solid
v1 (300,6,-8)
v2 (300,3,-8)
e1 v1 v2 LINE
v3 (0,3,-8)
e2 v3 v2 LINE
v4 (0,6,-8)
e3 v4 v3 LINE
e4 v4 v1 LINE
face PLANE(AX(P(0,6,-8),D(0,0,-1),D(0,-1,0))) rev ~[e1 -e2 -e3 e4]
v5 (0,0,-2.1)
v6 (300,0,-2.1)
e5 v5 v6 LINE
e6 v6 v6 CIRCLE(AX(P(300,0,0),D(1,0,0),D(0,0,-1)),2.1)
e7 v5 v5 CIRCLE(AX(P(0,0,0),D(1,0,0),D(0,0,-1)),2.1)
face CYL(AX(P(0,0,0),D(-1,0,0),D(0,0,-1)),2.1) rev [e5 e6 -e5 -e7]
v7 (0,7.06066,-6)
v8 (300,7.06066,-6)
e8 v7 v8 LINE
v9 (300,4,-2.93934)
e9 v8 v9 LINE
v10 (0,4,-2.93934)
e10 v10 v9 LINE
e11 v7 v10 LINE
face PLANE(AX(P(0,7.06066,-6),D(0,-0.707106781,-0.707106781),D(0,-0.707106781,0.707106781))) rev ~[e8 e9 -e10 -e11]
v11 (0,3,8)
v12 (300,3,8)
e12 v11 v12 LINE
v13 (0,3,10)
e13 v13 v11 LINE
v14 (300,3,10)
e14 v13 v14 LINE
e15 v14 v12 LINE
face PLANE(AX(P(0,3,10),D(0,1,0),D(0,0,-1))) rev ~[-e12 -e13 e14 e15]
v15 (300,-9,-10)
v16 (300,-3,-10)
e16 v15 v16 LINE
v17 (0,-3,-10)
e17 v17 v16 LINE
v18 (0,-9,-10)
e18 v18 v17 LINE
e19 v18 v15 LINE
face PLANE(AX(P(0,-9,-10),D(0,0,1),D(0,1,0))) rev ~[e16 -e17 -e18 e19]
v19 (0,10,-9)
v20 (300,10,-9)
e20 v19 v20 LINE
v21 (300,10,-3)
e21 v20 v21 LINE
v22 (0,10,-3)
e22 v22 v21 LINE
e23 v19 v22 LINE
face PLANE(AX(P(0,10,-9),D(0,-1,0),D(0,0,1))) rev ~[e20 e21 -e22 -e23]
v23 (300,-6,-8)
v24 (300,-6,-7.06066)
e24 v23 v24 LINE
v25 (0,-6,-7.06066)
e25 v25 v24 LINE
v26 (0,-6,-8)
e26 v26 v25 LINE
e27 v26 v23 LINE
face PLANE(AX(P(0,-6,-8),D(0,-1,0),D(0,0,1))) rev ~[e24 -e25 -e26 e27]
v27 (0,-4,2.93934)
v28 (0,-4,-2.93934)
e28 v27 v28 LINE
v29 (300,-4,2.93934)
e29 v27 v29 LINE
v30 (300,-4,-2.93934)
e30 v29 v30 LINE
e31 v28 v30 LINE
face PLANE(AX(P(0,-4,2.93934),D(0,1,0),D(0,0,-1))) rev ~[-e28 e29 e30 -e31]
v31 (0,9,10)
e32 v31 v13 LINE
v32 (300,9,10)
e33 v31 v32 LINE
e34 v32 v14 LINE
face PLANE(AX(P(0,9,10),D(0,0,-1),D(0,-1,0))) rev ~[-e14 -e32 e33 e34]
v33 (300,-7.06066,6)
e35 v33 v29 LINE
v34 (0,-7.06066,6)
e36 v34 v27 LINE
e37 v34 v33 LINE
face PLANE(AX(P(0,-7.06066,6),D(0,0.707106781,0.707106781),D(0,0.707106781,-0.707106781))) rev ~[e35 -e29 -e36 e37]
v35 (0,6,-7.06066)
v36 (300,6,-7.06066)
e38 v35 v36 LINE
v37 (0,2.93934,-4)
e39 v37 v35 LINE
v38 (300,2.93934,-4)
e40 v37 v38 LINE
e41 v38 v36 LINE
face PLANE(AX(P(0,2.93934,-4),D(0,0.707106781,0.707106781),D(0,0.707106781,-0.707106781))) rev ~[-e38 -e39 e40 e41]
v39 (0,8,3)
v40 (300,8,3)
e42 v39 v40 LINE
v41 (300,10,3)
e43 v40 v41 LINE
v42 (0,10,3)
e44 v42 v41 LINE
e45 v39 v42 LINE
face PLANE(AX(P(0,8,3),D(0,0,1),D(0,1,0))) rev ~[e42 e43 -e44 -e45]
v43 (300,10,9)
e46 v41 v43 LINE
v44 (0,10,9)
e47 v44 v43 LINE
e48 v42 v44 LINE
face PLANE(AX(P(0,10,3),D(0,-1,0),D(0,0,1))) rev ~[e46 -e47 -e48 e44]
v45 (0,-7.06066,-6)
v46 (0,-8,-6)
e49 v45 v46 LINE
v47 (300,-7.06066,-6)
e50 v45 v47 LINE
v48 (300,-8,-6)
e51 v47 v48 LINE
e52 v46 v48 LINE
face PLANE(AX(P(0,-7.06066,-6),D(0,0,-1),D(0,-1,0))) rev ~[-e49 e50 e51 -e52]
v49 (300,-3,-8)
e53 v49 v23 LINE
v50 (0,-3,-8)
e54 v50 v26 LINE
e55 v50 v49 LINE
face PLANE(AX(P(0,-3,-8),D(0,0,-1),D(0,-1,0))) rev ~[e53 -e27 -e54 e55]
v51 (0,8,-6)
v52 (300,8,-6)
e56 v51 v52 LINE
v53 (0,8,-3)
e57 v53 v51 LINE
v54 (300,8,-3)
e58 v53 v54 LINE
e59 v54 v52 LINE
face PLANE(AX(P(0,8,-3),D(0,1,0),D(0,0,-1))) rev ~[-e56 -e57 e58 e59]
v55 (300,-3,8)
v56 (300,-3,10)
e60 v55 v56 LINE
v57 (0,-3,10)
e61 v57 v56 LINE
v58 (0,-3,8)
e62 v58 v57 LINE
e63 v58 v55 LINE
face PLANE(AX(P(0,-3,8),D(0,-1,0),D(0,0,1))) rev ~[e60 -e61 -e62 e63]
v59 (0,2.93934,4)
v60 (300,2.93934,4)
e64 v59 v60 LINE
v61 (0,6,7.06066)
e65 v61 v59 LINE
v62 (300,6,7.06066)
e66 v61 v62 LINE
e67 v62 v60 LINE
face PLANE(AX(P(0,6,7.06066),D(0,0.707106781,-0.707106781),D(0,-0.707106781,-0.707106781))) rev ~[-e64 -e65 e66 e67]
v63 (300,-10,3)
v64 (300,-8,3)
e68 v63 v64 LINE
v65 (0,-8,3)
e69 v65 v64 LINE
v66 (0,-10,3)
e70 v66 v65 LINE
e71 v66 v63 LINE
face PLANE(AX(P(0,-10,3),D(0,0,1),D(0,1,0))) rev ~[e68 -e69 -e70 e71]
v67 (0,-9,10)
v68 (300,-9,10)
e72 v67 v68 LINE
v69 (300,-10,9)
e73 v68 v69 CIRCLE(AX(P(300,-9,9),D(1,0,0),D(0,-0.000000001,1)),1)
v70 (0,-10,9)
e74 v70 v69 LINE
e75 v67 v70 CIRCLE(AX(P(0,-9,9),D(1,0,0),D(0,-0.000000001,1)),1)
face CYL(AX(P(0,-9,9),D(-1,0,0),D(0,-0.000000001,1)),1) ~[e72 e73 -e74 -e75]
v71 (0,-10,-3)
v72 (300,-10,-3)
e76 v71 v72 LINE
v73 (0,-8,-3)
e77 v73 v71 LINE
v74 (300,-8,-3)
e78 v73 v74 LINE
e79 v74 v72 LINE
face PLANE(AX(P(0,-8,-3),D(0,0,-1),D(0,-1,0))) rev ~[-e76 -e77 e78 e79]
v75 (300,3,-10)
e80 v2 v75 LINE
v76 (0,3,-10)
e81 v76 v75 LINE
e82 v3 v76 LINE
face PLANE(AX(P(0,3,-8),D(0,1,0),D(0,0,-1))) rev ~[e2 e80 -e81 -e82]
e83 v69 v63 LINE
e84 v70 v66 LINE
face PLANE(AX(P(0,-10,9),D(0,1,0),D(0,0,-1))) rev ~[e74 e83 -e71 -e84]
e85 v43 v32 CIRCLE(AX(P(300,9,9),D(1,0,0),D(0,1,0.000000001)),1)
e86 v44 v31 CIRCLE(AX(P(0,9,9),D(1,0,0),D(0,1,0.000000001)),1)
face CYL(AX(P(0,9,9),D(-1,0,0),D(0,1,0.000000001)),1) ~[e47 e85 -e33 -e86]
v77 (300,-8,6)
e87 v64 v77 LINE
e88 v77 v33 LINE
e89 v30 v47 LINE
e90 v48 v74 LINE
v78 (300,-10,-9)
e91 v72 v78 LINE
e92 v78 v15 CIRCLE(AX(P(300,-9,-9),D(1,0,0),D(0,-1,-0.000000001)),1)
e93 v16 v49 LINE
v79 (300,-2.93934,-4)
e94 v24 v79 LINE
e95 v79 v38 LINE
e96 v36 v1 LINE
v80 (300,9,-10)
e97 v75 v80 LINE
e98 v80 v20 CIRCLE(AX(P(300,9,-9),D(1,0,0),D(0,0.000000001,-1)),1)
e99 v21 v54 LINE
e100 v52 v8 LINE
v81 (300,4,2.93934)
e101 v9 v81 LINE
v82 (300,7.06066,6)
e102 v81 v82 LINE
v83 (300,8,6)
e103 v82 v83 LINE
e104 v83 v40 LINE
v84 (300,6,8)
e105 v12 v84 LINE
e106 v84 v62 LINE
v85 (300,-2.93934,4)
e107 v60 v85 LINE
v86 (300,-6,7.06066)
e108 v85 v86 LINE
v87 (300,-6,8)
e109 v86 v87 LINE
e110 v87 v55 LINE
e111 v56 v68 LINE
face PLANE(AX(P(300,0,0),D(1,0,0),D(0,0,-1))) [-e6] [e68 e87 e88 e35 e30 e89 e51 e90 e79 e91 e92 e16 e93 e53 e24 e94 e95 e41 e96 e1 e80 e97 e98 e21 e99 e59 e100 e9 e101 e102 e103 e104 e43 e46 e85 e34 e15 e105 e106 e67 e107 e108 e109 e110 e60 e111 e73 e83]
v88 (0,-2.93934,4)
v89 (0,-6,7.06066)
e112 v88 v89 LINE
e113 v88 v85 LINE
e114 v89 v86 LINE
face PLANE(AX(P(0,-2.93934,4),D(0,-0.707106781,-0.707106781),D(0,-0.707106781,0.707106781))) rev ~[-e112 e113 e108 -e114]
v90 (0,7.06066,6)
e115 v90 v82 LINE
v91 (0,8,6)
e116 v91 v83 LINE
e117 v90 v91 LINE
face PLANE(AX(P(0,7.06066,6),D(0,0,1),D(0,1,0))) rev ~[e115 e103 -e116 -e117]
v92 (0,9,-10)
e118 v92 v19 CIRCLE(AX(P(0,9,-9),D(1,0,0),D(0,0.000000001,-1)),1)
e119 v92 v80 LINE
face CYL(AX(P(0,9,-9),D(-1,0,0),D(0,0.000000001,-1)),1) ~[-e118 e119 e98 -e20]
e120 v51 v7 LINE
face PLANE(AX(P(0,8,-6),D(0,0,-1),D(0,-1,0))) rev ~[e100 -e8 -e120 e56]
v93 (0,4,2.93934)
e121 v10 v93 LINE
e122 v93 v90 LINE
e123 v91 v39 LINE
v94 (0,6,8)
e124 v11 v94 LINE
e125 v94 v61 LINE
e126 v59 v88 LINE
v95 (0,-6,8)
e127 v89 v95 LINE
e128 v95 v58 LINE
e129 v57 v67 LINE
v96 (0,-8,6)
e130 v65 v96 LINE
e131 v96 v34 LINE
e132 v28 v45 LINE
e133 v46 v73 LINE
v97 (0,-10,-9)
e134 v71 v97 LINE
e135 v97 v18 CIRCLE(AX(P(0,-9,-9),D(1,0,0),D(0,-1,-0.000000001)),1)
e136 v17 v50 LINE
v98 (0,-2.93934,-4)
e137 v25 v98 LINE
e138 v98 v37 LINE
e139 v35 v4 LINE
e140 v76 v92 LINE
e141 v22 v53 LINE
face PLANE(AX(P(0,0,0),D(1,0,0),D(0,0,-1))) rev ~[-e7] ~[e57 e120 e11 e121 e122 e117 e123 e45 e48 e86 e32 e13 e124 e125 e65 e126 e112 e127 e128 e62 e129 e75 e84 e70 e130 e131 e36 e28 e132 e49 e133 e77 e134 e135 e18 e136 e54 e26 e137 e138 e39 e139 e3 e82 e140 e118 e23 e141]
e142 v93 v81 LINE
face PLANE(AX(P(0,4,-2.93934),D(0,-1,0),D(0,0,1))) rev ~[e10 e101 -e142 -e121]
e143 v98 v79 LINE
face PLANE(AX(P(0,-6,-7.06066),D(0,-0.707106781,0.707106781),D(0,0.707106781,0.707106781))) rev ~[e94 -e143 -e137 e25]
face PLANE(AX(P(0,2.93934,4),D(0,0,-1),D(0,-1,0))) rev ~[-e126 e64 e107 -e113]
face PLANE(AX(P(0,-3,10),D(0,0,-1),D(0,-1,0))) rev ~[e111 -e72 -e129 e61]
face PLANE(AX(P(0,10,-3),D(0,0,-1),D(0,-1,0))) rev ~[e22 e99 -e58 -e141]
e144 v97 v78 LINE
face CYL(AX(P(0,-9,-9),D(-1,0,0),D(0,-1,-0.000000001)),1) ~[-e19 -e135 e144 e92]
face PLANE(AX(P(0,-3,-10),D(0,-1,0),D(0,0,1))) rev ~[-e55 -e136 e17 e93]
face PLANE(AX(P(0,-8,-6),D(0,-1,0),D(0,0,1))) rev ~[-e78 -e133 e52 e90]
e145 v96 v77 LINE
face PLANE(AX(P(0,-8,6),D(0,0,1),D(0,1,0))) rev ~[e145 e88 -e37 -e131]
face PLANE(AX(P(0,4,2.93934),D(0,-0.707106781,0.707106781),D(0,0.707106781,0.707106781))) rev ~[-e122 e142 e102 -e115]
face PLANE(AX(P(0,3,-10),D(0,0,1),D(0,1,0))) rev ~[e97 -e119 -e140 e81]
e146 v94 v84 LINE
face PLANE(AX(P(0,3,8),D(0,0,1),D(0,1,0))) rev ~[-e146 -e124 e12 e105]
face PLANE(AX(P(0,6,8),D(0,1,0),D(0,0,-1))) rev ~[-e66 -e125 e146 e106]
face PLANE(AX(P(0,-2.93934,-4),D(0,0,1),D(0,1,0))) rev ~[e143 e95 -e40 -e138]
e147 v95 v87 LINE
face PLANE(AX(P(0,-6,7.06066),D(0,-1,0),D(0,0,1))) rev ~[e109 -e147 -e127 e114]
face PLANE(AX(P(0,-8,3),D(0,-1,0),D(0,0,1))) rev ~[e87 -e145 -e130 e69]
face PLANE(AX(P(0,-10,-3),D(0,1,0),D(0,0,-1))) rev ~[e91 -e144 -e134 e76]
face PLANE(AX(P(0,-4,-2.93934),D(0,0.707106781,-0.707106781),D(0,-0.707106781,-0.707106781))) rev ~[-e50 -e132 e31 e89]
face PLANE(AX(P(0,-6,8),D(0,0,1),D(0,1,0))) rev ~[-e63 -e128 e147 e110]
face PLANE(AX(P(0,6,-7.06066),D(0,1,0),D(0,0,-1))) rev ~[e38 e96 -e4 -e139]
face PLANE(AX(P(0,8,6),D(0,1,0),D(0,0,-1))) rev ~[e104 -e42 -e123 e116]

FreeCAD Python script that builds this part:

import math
import FreeCAD as App
import Part
import Sketcher
Q = App.Units.Quantity

doc = App.newDocument("Part")
params = doc.addObject("Spreadsheet::Sheet", "Params")
for row, (alias, value) in enumerate([
    ("sketch1_radius", "1 mm"),
    ("sketch1_diameter", "4.2 mm"),
    ("sketch1_width", "6 mm"),
    ("sketch1_width2", "3 mm"),
    ("sketch1_width3", "2 mm"),
    ("pad1_length", "300 mm"),
], start=1):
    params.set(f"A{row}", alias)
    params.set(f"B{row}", "=" + value)
    params.setAlias(f"B{row}", alias)

body = doc.addObject("PartDesign::Body", "Body")

# Sketch on YZ plane
sketch1 = body.newObject("Sketcher::SketchObject", "Sketch")
sketch1.AttachmentSupport = (doc.getObject("YZ_Plane"), [""])
sketch1.MapMode = "FlatFace"
sketch1.addGeometry([
    Part.LineSegment(App.Vector(9, 10, 0), App.Vector(3, 10, 0)),  # 0
    Part.LineSegment(App.Vector(3, 10, 0), App.Vector(3, 8, 0)),  # 1
    Part.LineSegment(App.Vector(3, 8, 0), App.Vector(6, 8, 0)),  # 2
    Part.LineSegment(App.Vector(6, 8, 0), App.Vector(6, 7.1, 0)),  # 3
    Part.LineSegment(App.Vector(6, 7.1, 0), App.Vector(2.9, 4, 0)),  # 4
    Part.LineSegment(App.Vector(2.9, 4, 0), App.Vector(-2.9, 4, 0)),  # 5
    Part.LineSegment(App.Vector(-2.9, 4, 0), App.Vector(-6, 7.1, 0)),  # 6
    Part.LineSegment(App.Vector(-6, 7.1, 0), App.Vector(-6, 8, 0)),  # 7
    Part.LineSegment(App.Vector(-6, 8, 0), App.Vector(-3, 8, 0)),  # 8
    Part.LineSegment(App.Vector(-3, 8, 0), App.Vector(-3, 10, 0)),  # 9
    Part.LineSegment(App.Vector(-3, 10, 0), App.Vector(-9, 10, 0)),  # 10
    Part.ArcOfCircle(Part.Circle(App.Vector(-9, 9, 0), App.Vector(0, 0, 1), 1), math.radians(90), math.radians(180)),  # 11
    Part.LineSegment(App.Vector(-10, 9, 0), App.Vector(-10, 3, 0)),  # 12
    Part.LineSegment(App.Vector(-10, 3, 0), App.Vector(-8, 3, 0)),  # 13
    Part.LineSegment(App.Vector(-8, 3, 0), App.Vector(-8, 6, 0)),  # 14
    Part.LineSegment(App.Vector(-8, 6, 0), App.Vector(-7.1, 6, 0)),  # 15
    Part.LineSegment(App.Vector(-7.1, 6, 0), App.Vector(-4, 2.9, 0)),  # 16
    Part.LineSegment(App.Vector(-4, 2.9, 0), App.Vector(-4, -2.9, 0)),  # 17
    Part.LineSegment(App.Vector(-4, -2.9, 0), App.Vector(-7.1, -6, 0)),  # 18
    Part.LineSegment(App.Vector(-7.1, -6, 0), App.Vector(-8, -6, 0)),  # 19
    Part.LineSegment(App.Vector(-8, -6, 0), App.Vector(-8, -3, 0)),  # 20
    Part.LineSegment(App.Vector(-8, -3, 0), App.Vector(-10, -3, 0)),  # 21
    Part.LineSegment(App.Vector(-10, -3, 0), App.Vector(-10, -9, 0)),  # 22
    Part.ArcOfCircle(Part.Circle(App.Vector(-9, -9, 0), App.Vector(0, 0, 1), 1), math.radians(-180), math.radians(-90)),  # 23
    Part.LineSegment(App.Vector(-9, -10, 0), App.Vector(-3, -10, 0)),  # 24
    Part.LineSegment(App.Vector(-3, -10, 0), App.Vector(-3, -8, 0)),  # 25
    Part.LineSegment(App.Vector(-3, -8, 0), App.Vector(-6, -8, 0)),  # 26
    Part.LineSegment(App.Vector(-6, -8, 0), App.Vector(-6, -7.1, 0)),  # 27
    Part.LineSegment(App.Vector(-6, -7.1, 0), App.Vector(-2.9, -4, 0)),  # 28
    Part.LineSegment(App.Vector(-2.9, -4, 0), App.Vector(2.9, -4, 0)),  # 29
    Part.LineSegment(App.Vector(2.9, -4, 0), App.Vector(6, -7.1, 0)),  # 30
    Part.LineSegment(App.Vector(6, -7.1, 0), App.Vector(6, -8, 0)),  # 31
    Part.LineSegment(App.Vector(6, -8, 0), App.Vector(3, -8, 0)),  # 32
    Part.LineSegment(App.Vector(3, -8, 0), App.Vector(3, -10, 0)),  # 33
    Part.LineSegment(App.Vector(3, -10, 0), App.Vector(9, -10, 0)),  # 34
    Part.ArcOfCircle(Part.Circle(App.Vector(9, -9, 0), App.Vector(0, 0, 1), 1), math.radians(-90), math.radians(0)),  # 35
    Part.LineSegment(App.Vector(10, -9, 0), App.Vector(10, -3, 0)),  # 36
    Part.LineSegment(App.Vector(10, -3, 0), App.Vector(8, -3, 0)),  # 37
    Part.LineSegment(App.Vector(8, -3, 0), App.Vector(8, -6, 0)),  # 38
    Part.LineSegment(App.Vector(8, -6, 0), App.Vector(7.1, -6, 0)),  # 39
    Part.LineSegment(App.Vector(7.1, -6, 0), App.Vector(4, -2.9, 0)),  # 40
    Part.LineSegment(App.Vector(4, -2.9, 0), App.Vector(4, 2.9, 0)),  # 41
    Part.LineSegment(App.Vector(4, 2.9, 0), App.Vector(7.1, 6, 0)),  # 42
    Part.LineSegment(App.Vector(7.1, 6, 0), App.Vector(8, 6, 0)),  # 43
    Part.LineSegment(App.Vector(8, 6, 0), App.Vector(8, 3, 0)),  # 44
    Part.LineSegment(App.Vector(8, 3, 0), App.Vector(10, 3, 0)),  # 45
    Part.LineSegment(App.Vector(10, 3, 0), App.Vector(10, 9, 0)),  # 46
    Part.ArcOfCircle(Part.Circle(App.Vector(9, 9, 0), App.Vector(0, 0, 1), 1), math.radians(0), math.radians(90)),  # 47
    Part.Circle(App.Vector(0, 0, 0), App.Vector(0, 0, 1), 2.1),  # 48
], False)
sketch1.addConstraint([
    Sketcher.Constraint("Coincident", 0, 2, 1, 1),
    Sketcher.Constraint("Coincident", 1, 2, 2, 1),
    Sketcher.Constraint("Coincident", 2, 2, 3, 1),
    Sketcher.Constraint("Coincident", 3, 2, 4, 1),
    Sketcher.Constraint("Coincident", 4, 2, 5, 1),
    Sketcher.Constraint("Coincident", 5, 2, 6, 1),
    Sketcher.Constraint("Coincident", 6, 2, 7, 1),
    Sketcher.Constraint("Coincident", 7, 2, 8, 1),
    Sketcher.Constraint("Coincident", 8, 2, 9, 1),
    Sketcher.Constraint("Coincident", 9, 2, 10, 1),
    Sketcher.Constraint("Tangent", 10, 2, 11, 1),
    Sketcher.Constraint("Tangent", 11, 2, 12, 1),
    Sketcher.Constraint("Coincident", 12, 2, 13, 1),
    Sketcher.Constraint("Coincident", 13, 2, 14, 1),
    Sketcher.Constraint("Coincident", 14, 2, 15, 1),
    Sketcher.Constraint("Coincident", 15, 2, 16, 1),
    Sketcher.Constraint("Coincident", 16, 2, 17, 1),
    Sketcher.Constraint("Coincident", 17, 2, 18, 1),
    Sketcher.Constraint("Coincident", 18, 2, 19, 1),
    Sketcher.Constraint("Coincident", 19, 2, 20, 1),
    Sketcher.Constraint("Coincident", 20, 2, 21, 1),
    Sketcher.Constraint("Coincident", 21, 2, 22, 1),
    Sketcher.Constraint("Tangent", 22, 2, 23, 1),
    Sketcher.Constraint("Tangent", 23, 2, 24, 1),
    Sketcher.Constraint("Coincident", 24, 2, 25, 1),
    Sketcher.Constraint("Coincident", 25, 2, 26, 1),
    Sketcher.Constraint("Coincident", 26, 2, 27, 1),
    Sketcher.Constraint("Coincident", 27, 2, 28, 1),
    Sketcher.Constraint("Coincident", 28, 2, 29, 1),
    Sketcher.Constraint("Coincident", 29, 2, 30, 1),
    Sketcher.Constraint("Coincident", 30, 2, 31, 1),
    Sketcher.Constraint("Coincident", 31, 2, 32, 1),
    Sketcher.Constraint("Coincident", 32, 2, 33, 1),
    Sketcher.Constraint("Coincident", 33, 2, 34, 1),
    Sketcher.Constraint("Tangent", 34, 2, 35, 1),
    Sketcher.Constraint("Tangent", 35, 2, 36, 1),
    Sketcher.Constraint("Coincident", 36, 2, 37, 1),
    Sketcher.Constraint("Coincident", 37, 2, 38, 1),
    Sketcher.Constraint("Coincident", 38, 2, 39, 1),
    Sketcher.Constraint("Coincident", 39, 2, 40, 1),
    Sketcher.Constraint("Coincident", 40, 2, 41, 1),
    Sketcher.Constraint("Coincident", 41, 2, 42, 1),
    Sketcher.Constraint("Coincident", 42, 2, 43, 1),
    Sketcher.Constraint("Coincident", 43, 2, 44, 1),
    Sketcher.Constraint("Coincident", 44, 2, 45, 1),
    Sketcher.Constraint("Coincident", 45, 2, 46, 1),
    Sketcher.Constraint("Tangent", 46, 2, 47, 1),
    Sketcher.Constraint("Tangent", 47, 2, 0, 1),
    Sketcher.Constraint("Horizontal", 0),
    Sketcher.Constraint("Vertical", 1),
    Sketcher.Constraint("Horizontal", 2),
    Sketcher.Constraint("Vertical", 3),
    Sketcher.Constraint("Horizontal", 5),
    Sketcher.Constraint("Vertical", 7),
    Sketcher.Constraint("Horizontal", 8),
    Sketcher.Constraint("Vertical", 9),
    Sketcher.Constraint("Horizontal", 10),
    Sketcher.Constraint("Vertical", 12),
    Sketcher.Constraint("Horizontal", 13),
    Sketcher.Constraint("Vertical", 14),
    Sketcher.Constraint("Horizontal", 15),
    Sketcher.Constraint("Vertical", 17),
    Sketcher.Constraint("Horizontal", 19),
    Sketcher.Constraint("Vertical", 20),
    Sketcher.Constraint("Horizontal", 21),
    Sketcher.Constraint("Vertical", 22),
    Sketcher.Constraint("Horizontal", 24),
    Sketcher.Constraint("Vertical", 25),
    Sketcher.Constraint("Horizontal", 26),
    Sketcher.Constraint("Vertical", 27),
    Sketcher.Constraint("Horizontal", 29),
    Sketcher.Constraint("Vertical", 31),
    Sketcher.Constraint("Horizontal", 32),
    Sketcher.Constraint("Vertical", 33),
    Sketcher.Constraint("Horizontal", 34),
    Sketcher.Constraint("Vertical", 36),
    Sketcher.Constraint("Horizontal", 37),
    Sketcher.Constraint("Vertical", 38),
    Sketcher.Constraint("Horizontal", 39),
    Sketcher.Constraint("Vertical", 41),
    Sketcher.Constraint("Horizontal", 43),
    Sketcher.Constraint("Vertical", 44),
    Sketcher.Constraint("Horizontal", 45),
    Sketcher.Constraint("Vertical", 46),
    Sketcher.Constraint("Coincident", 48, 3, -1, 1),
    Sketcher.Constraint("Equal", 11, 23),
    Sketcher.Constraint("Equal", 23, 35),
    Sketcher.Constraint("Equal", 35, 47),
    Sketcher.Constraint("Symmetric", 11, 3, 35, 3, -1, 1),
    Sketcher.Constraint("Symmetric", 23, 3, 47, 3, -1, 1),
    Sketcher.Constraint("Symmetric", 1, 2, 25, 2, -1, 1),
    Sketcher.Constraint("Symmetric", 3, 2, 27, 2, -1, 1),
    Sketcher.Constraint("Symmetric", 4, 2, 28, 2, -1, 1),
    Sketcher.Constraint("Symmetric", 6, 2, 30, 2, -1, 1),
    Sketcher.Constraint("Symmetric", 8, 2, 32, 2, -1, 1),
    Sketcher.Constraint("Symmetric", 13, 2, 37, 2, -1, 1),
    Sketcher.Constraint("Symmetric", 15, 2, 39, 2, -1, 1),
    Sketcher.Constraint("Symmetric", 16, 2, 40, 2, -1, 1),
    Sketcher.Constraint("Symmetric", 18, 2, 42, 2, -1, 1),
    Sketcher.Constraint("Symmetric", 20, 2, 44, 2, -1, 1),
    Sketcher.Constraint("Symmetric", 23, 3, 35, 3, -2),
    Sketcher.Constraint("Symmetric", 3, 2, 6, 2, -2),
    Sketcher.Constraint("Symmetric", 1, 2, 8, 2, -2),
    Sketcher.Constraint("Symmetric", 20, 2, 37, 2, -2),
    Sketcher.Constraint("Symmetric", 18, 2, 39, 2, -2),
    Sketcher.Constraint("Perpendicular", 4, 6),
    Sketcher.Constraint("Parallel", 6, 16),
    Sketcher.Constraint("Perpendicular", 16, 18),
    Sketcher.Constraint("Perpendicular", 28, 30),
    Sketcher.Constraint("Perpendicular", 40, 42),
    Sketcher.Constraint("Horizontal", 17, 2, 40, 2),
    Sketcher.Constraint("Equal", 45, 1),
    Sketcher.Constraint("Equal", 43, 3),
    Sketcher.Constraint("Equal", 34, 12),
    Sketcher.Constraint("Equal", 32, 14),
    Sketcher.Constraint("Equal", 29, 17),
    Sketcher.Constraint("Equal", 6, 16),
    Sketcher.Constraint("Radius", 11, Q("1 mm")),
    Sketcher.Constraint("Diameter", 48, Q("4.2 mm")),
    Sketcher.Constraint("DistanceX", 0, 2, 0, 1, Q("6 mm")),
    Sketcher.Constraint("DistanceX", 2, 1, 2, 2, Q("3 mm")),
    Sketcher.Constraint("DistanceX", 13, 1, 13, 2, Q("2 mm")),
    Sketcher.Constraint("DistanceX", 11, 3, -1, 1, Q("9 mm")),
    Sketcher.Constraint("DistanceY", -1, 1, 4, 2, Q("4 mm")),
    Sketcher.Constraint("DistanceX", 5, 2, 5, 1, Q("5.87868 mm")),
])
sketch1.setExpression("Constraints[117]", "Params.sketch1_radius")
sketch1.setExpression("Constraints[118]", "Params.sketch1_diameter")
sketch1.setExpression("Constraints[119]", "Params.sketch1_width")
sketch1.setExpression("Constraints[120]", "Params.sketch1_width2")
sketch1.setExpression("Constraints[121]", "Params.sketch1_width3")
pad1 = body.newObject("PartDesign::Pad", "Pad")
pad1.Profile = sketch1
pad1.setExpression("Length", "Params.pad1_length")

doc.recompute()
